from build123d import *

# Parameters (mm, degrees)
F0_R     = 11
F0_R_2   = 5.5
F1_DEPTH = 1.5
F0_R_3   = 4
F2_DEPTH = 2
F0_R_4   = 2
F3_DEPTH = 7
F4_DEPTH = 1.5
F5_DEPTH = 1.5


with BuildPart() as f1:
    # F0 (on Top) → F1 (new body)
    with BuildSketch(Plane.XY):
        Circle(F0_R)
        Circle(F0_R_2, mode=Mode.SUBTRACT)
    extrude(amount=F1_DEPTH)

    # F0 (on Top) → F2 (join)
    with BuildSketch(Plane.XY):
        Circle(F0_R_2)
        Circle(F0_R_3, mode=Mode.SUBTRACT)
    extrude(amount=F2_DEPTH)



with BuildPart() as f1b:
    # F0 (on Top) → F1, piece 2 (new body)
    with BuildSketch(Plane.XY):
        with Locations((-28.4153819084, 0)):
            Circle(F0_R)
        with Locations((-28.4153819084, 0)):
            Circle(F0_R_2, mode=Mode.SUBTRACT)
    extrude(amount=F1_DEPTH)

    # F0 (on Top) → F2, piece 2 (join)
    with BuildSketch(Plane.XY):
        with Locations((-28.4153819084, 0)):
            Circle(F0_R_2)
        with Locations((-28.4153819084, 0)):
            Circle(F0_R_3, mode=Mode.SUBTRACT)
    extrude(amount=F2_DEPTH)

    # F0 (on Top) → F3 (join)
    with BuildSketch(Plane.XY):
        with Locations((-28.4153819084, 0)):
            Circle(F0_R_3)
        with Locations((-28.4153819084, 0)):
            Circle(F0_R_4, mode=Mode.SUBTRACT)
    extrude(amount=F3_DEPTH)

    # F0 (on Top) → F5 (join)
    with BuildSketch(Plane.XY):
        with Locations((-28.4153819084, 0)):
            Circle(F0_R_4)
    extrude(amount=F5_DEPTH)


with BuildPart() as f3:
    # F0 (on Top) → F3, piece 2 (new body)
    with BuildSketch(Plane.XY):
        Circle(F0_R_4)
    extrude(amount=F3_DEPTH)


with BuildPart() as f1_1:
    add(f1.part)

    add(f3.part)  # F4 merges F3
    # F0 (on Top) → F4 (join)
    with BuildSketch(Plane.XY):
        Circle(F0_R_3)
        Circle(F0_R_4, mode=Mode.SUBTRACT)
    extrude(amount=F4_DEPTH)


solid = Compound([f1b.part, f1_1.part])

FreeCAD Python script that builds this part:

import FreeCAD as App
import Part
import Sketcher

doc = App.newDocument("Part")
body = doc.addObject("PartDesign::Body", "Body")

# Sketch on XY plane
sketch1 = doc.addObject("Sketcher::SketchObject", "Sketch")
body.addObject(sketch1)
sketch1.AttachmentSupport = (doc.XY_Plane, [""])
sketch1.MapMode = "FlatFace"
sketch1.addGeometry([
    Part.Circle(App.Vector(0, 0, 0), App.Vector(0, 0, 1), 11),
    Part.Circle(App.Vector(0, 0, 0), App.Vector(0, 0, 1), 6),
], False)
sketch1.addConstraint([
    Sketcher.Constraint("Coincident", 0, 3, -1, 1),
    Sketcher.Constraint("Coincident", 1, 3, -1, 1),
    Sketcher.Constraint("Diameter", 0, 22.0),
    Sketcher.Constraint("Diameter", 1, 11.0),
])
pad1 = doc.addObject("PartDesign::Pad", "Pad")
body.addObject(pad1)
pad1.Profile = sketch1
pad1.Length = 1.5

# Sketch on XY plane
sketch2 = doc.addObject("Sketcher::SketchObject", "Sketch001")
body.addObject(sketch2)
sketch2.AttachmentSupport = (doc.XY_Plane, [""])
sketch2.MapMode = "FlatFace"
sketch2.addGeometry([
    Part.Circle(App.Vector(0, 0, 0), App.Vector(0, 0, 1), 5.5),
    Part.Circle(App.Vector(0, 0, 0), App.Vector(0, 0, 1), 4),
], False)
sketch2.addConstraint([
    Sketcher.Constraint("Coincident", 0, 3, -1, 1),
    Sketcher.Constraint("Coincident", 1, 3, -1, 1),
    Sketcher.Constraint("Diameter", 0, 11.0),
    Sketcher.Constraint("Diameter", 1, 8.0),
])
pad2 = doc.addObject("PartDesign::Pad", "Pad001")
body.addObject(pad2)
pad2.Profile = sketch2
pad2.Length = 2
body2 = doc.addObject("PartDesign::Body", "Body001")

# Sketch on XY plane
sketch3 = doc.addObject("Sketcher::SketchObject", "Sketch002")
body2.addObject(sketch3)
sketch3.AttachmentSupport = (doc.getObject("XY_Plane001"), [""])
sketch3.MapMode = "FlatFace"
sketch3.addGeometry([
    Part.Circle(App.Vector(-28, 0, 0), App.Vector(0, 0, 1), 11),
    Part.Circle(App.Vector(-28, 0, 0), App.Vector(0, 0, 1), 6),
], False)
sketch3.addConstraint([
    Sketcher.Constraint("Coincident", 1, 3, 0, 3),
    Sketcher.Constraint("PointOnObject", 0, 3, -1),
    Sketcher.Constraint("Diameter", 0, 22.0),
    Sketcher.Constraint("Diameter", 1, 11.0),
    Sketcher.Constraint("DistanceX", 0, 3, -1, 1, 28.415382),
])
pad3 = doc.addObject("PartDesign::Pad", "Pad002")
body2.addObject(pad3)
pad3.Profile = sketch3
pad3.Length = 1.5

# Sketch on XY plane
sketch4 = doc.addObject("Sketcher::SketchObject", "Sketch003")
body2.addObject(sketch4)
sketch4.AttachmentSupport = (doc.getObject("XY_Plane001"), [""])
sketch4.MapMode = "FlatFace"
sketch4.addGeometry([
    Part.Circle(App.Vector(-28.4, 0, 0), App.Vector(0, 0, 1), 5.5),
    Part.Circle(App.Vector(-28.4, 0, 0), App.Vector(0, 0, 1), 4),
], False)
sketch4.addConstraint([
    Sketcher.Constraint("Coincident", 1, 3, 0, 3),
    Sketcher.Constraint("PointOnObject", 0, 3, -1),
    Sketcher.Constraint("Diameter", 0, 11.0),
    Sketcher.Constraint("Diameter", 1, 8.0),
    Sketcher.Constraint("DistanceX", 0, 3, -1, 1, 28.415382),
])
pad4 = doc.addObject("PartDesign::Pad", "Pad003")
body2.addObject(pad4)
pad4.Profile = sketch4
pad4.Length = 2

# Sketch on XY plane
sketch5 = doc.addObject("Sketcher::SketchObject", "Sketch004")
body2.addObject(sketch5)
sketch5.AttachmentSupport = (doc.getObject("XY_Plane001"), [""])
sketch5.MapMode = "FlatFace"
sketch5.addGeometry([
    Part.Circle(App.Vector(-28.4, 0, 0), App.Vector(0, 0, 1), 4),
    Part.Circle(App.Vector(-28.4, 0, 0), App.Vector(0, 0, 1), 2),
], False)
sketch5.addConstraint([
    Sketcher.Constraint("Coincident", 1, 3, 0, 3),
    Sketcher.Constraint("PointOnObject", 0, 3, -1),
    Sketcher.Constraint("Diameter", 0, 8.0),
    Sketcher.Constraint("Diameter", 1, 4.0),
    Sketcher.Constraint("DistanceX", 0, 3, -1, 1, 28.415382),
])
pad5 = doc.addObject("PartDesign::Pad", "Pad004")
body2.addObject(pad5)
pad5.Profile = sketch5
pad5.Length = 7

# Sketch on XY plane
sketch6 = doc.addObject("Sketcher::SketchObject", "Sketch005")
body2.addObject(sketch6)
sketch6.AttachmentSupport = (doc.getObject("XY_Plane001"), [""])
sketch6.MapMode = "FlatFace"
sketch6.addGeometry(Part.Circle(App.Vector(-28.4, 0, 0), App.Vector(0, 0, 1), 2), False)
sketch6.addConstraint([
    Sketcher.Constraint("PointOnObject", 0, 3, -1),
    Sketcher.Constraint("Diameter", 0, 4.0),
    Sketcher.Constraint("DistanceX", 0, 3, -1, 1, 28.415382),
])
pad6 = doc.addObject("PartDesign::Pad", "Pad005")
body2.addObject(pad6)
pad6.Profile = sketch6
pad6.Length = 1.5
body3 = doc.addObject("PartDesign::Body", "Body002")

# Sketch on XY plane
sketch7 = doc.addObject("Sketcher::SketchObject", "Sketch006")
body3.addObject(sketch7)
sketch7.AttachmentSupport = (doc.getObject("XY_Plane002"), [""])
sketch7.MapMode = "FlatFace"
sketch7.addGeometry(Part.Circle(App.Vector(0, 0, 0), App.Vector(0, 0, 1), 2), False)
sketch7.addConstraint([
    Sketcher.Constraint("Coincident", 0, 3, -1, 1),
    Sketcher.Constraint("Diameter", 0, 4.0),
])
pad7 = doc.addObject("PartDesign::Pad", "Pad006")
body3.addObject(pad7)
pad7.Profile = sketch7
pad7.Length = 7
body.AllowCompound = True
doc.recompute()

boolean = doc.addObject("PartDesign::Boolean", "Boolean")
body.addObject(boolean)
boolean.Type = "Fuse"
boolean.addObjects([body3])

# Sketch on XY plane
sketch8 = doc.addObject("Sketcher::SketchObject", "Sketch007")
body.addObject(sketch8)
sketch8.AttachmentSupport = (doc.XY_Plane, [""])
sketch8.MapMode = "FlatFace"
sketch8.addGeometry([
    Part.Circle(App.Vector(0, 0, 0), App.Vector(0, 0, 1), 4),
    Part.Circle(App.Vector(0, 0, 0), App.Vector(0, 0, 1), 2),
], False)
sketch8.addConstraint([
    Sketcher.Constraint("Coincident", 0, 3, -1, 1),
    Sketcher.Constraint("Coincident", 1, 3, -1, 1),
    Sketcher.Constraint("Diameter", 0, 8.0),
    Sketcher.Constraint("Diameter", 1, 4.0),
])
pad8 = doc.addObject("PartDesign::Pad", "Pad007")
body.addObject(pad8)
pad8.Profile = sketch8
pad8.Length = 1.5

doc.recompute()
